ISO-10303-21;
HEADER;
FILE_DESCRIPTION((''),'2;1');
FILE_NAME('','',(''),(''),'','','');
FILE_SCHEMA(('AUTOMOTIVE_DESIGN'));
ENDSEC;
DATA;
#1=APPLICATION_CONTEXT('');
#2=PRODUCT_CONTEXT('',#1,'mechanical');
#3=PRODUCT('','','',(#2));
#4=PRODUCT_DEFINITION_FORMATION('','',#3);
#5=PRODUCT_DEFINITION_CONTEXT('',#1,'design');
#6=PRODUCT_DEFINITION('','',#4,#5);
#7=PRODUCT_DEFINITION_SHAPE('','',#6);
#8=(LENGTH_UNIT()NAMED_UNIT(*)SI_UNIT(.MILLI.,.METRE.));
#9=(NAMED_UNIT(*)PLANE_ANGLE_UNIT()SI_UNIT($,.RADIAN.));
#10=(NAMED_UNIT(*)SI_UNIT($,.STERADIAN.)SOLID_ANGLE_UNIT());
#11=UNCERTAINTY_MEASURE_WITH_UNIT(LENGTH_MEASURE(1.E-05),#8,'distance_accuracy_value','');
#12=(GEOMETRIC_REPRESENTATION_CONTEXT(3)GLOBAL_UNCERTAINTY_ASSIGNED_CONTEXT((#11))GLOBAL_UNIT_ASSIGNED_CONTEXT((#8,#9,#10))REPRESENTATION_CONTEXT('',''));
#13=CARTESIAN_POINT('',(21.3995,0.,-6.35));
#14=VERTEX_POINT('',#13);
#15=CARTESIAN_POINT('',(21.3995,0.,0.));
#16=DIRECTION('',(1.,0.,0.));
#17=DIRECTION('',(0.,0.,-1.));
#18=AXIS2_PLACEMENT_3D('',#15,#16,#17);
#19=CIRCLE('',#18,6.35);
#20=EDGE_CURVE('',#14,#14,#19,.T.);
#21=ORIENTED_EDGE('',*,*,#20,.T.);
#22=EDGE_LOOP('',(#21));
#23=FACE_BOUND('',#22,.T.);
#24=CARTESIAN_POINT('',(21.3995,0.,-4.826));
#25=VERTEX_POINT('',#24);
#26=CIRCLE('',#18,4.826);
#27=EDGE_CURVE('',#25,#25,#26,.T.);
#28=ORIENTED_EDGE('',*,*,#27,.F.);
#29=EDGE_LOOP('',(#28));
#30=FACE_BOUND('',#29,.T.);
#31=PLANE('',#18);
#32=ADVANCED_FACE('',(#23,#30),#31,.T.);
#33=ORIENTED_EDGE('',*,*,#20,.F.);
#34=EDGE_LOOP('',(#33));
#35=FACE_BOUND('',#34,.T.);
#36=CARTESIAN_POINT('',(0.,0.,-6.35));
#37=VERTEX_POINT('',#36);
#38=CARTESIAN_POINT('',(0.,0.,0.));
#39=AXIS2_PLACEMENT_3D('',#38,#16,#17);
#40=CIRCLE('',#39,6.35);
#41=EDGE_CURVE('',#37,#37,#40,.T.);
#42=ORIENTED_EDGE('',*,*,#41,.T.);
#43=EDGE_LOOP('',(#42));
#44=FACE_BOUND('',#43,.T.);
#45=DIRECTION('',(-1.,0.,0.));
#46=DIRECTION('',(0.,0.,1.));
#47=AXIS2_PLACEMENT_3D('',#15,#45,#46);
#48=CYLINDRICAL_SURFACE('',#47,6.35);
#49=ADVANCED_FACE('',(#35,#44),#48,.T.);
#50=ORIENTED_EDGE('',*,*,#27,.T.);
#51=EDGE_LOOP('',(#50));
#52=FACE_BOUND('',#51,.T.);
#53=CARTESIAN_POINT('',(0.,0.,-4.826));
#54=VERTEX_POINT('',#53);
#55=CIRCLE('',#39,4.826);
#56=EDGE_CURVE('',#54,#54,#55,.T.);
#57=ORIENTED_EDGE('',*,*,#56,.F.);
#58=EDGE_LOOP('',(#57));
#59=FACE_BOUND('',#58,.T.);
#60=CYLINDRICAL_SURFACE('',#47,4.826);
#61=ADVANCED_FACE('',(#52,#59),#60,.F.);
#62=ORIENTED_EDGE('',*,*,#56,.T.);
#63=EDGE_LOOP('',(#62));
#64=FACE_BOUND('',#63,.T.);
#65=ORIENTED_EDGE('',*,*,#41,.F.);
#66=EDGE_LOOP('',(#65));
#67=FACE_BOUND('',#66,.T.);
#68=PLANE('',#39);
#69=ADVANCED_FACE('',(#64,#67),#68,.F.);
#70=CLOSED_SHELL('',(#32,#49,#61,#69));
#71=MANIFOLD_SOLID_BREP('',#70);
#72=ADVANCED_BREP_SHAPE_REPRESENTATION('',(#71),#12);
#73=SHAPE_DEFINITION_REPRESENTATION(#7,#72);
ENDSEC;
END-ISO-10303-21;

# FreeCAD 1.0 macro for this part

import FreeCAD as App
import Part
import Sketcher
from FreeCAD import Vector
Q = App.Units.Quantity

doc = App.newDocument("Part")
params = doc.addObject("Spreadsheet::Sheet", "Params")
for row, (alias, value) in enumerate([
    ("sketch1_diameter", "0.5 in"),
    ("sketch1_diameter2", "0.38 in"),
    ("pad1_length", "0.8425 in"),
], start=1):
    params.set(f"A{row}", alias)
    params.set(f"B{row}", "=" + value)
    params.setAlias(f"B{row}", alias)

body = doc.addObject("PartDesign::Body", "Body")

# Sketch on YZ plane
sketch1 = body.newObject("Sketcher::SketchObject", "Sketch")
sketch1.AttachmentSupport = (doc.getObject("YZ_Plane"), [""])
sketch1.MapMode = "FlatFace"
sketch1.addGeometry(Part.Circle(Vector(0, 0, 0), Vector(0, 0, 1), 6.35), False)
sketch1.addGeometry(Part.Circle(Vector(0, 0, 0), Vector(0, 0, 1), 4.826), False)
sketch1.addConstraint(Sketcher.Constraint("Coincident", 0, 3, -1, 1))
sketch1.addConstraint(Sketcher.Constraint("Coincident", 1, 3, -1, 1))
sketch1.addConstraint(Sketcher.Constraint("Diameter", 0, Q("0.5 in")))
sketch1.addConstraint(Sketcher.Constraint("Diameter", 1, Q("0.38 in")))
sketch1.setExpression("Constraints[2]", "Params.sketch1_diameter")
sketch1.setExpression("Constraints[3]", "Params.sketch1_diameter2")
pad1 = body.newObject("PartDesign::Pad", "Pad")
pad1.Profile = sketch1
pad1.setExpression("Length", "Params.pad1_length")

doc.recompute()
